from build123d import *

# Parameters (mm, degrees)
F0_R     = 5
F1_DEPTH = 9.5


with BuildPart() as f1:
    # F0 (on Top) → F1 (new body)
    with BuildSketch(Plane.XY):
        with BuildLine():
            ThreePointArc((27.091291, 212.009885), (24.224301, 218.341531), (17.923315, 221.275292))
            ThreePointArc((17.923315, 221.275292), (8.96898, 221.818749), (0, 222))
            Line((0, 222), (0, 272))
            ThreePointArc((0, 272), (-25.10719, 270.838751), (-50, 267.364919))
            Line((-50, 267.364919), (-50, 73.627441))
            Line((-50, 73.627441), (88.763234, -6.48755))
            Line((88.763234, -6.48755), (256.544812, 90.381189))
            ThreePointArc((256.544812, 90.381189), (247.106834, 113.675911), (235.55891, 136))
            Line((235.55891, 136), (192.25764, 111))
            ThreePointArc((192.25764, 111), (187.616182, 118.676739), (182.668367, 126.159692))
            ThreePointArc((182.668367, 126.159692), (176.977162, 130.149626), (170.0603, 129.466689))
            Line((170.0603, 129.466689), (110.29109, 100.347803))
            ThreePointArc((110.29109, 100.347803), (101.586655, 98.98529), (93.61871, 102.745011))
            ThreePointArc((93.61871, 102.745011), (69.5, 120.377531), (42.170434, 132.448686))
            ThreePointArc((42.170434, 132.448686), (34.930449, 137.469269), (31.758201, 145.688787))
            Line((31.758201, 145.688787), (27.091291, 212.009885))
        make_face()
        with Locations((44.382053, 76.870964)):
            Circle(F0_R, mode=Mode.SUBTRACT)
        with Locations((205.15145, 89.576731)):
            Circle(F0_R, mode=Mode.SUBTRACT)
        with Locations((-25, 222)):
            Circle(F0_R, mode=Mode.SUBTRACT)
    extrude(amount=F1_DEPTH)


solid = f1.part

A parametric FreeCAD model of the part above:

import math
import FreeCAD as App
import Part
import Sketcher
from FreeCAD import Vector
Q = App.Units.Quantity

doc = App.newDocument("Part")
params = doc.addObject("Spreadsheet::Sheet", "Params")
for row, (alias, value) in enumerate([
    ("sketch1_diameter", "10 mm"),
    ("sketch1_radius", "10.000001 mm"),
    ("sketch1_height", "50 mm"),
    ("sketch1_length", "50 mm"),
    ("pad1_length", "9.5 mm"),
], start=1):
    params.set(f"A{row}", alias)
    params.set(f"B{row}", "=" + value)
    params.setAlias(f"B{row}", alias)

body = doc.addObject("PartDesign::Body", "Body")

sketch1 = body.newObject("Sketcher::SketchObject", "Sketch")
sketch1.AttachmentSupport = (doc.getObject("XY_Plane"), [""])
sketch1.MapMode = "FlatFace"
sketch1.addGeometry(Part.ArcOfCircle(Part.Circle(Vector(17.115957, 211.307935, 0), Vector(0, 0, 1), 10.000001), math.radians(4.025185), math.radians(85.369138)), False)
sketch1.addGeometry(Part.ArcOfCircle(Part.Circle(Vector(-0.000001, -0.000069, 0), Vector(0, 0, 1), 222.000069), math.radians(85.369149), math.radians(90)), False)
sketch1.addGeometry(Part.LineSegment(Vector(0, 222, 0), Vector(0, 272, 0)), False)
sketch1.addGeometry(Part.ArcOfCircle(Part.Circle(Vector(-0.000002, 0.000033, 0), Vector(0, 0, 1), 271.999967), math.radians(90), math.radians(100.59255)), False)
sketch1.addGeometry(Part.LineSegment(Vector(-50, 267.364919, 0), Vector(-50, 73.627441, 0)), False)
sketch1.addGeometry(Part.LineSegment(Vector(-50, 73.627441, 0), Vector(88.763234, -6.48755, 0)), False)
sketch1.addGeometry(Part.LineSegment(Vector(88.763234, -6.48755, 0), Vector(256.544812, 90.381189, 0)), False)
sketch1.addGeometry(Part.ArcOfCircle(Part.Circle(Vector(0.000064, 0.000032, 0), Vector(0, 0, 1), 271.999929), math.radians(19.407449), math.radians(30.000001)), False)
sketch1.addGeometry(Part.LineSegment(Vector(235.55891, 136, 0), Vector(192.25764, 111, 0)), False)
sketch1.addGeometry(Part.ArcOfCircle(Part.Circle(Vector(-0.000083, -0.000051, 0), Vector(0, 0, 1), 222.000098), math.radians(30.000001), math.radians(34.630851)), False)
sketch1.addGeometry(Part.ArcOfCircle(Part.Circle(Vector(174.440061, 120.476821, 0), Vector(0, 0, 1), 10.000002), math.radians(34.630859), math.radians(115.974817)), False)
sketch1.addGeometry(Part.LineSegment(Vector(170.0603, 129.466689, 0), Vector(110.29109, 100.347803, 0)), False)
sketch1.addGeometry(Part.ArcOfCircle(Part.Circle(Vector(103.721448, 113.832598, 0), Vector(0, 0, 1), 14.999997), math.radians(-132.339015), math.radians(-64.025171)), False)
sketch1.addGeometry(Part.ArcOfCircle(Part.Circle(Vector(-0.000004, -0.00001, 0), Vector(0, 0, 1), 139.00001), math.radians(47.660995), math.radians(72.339007)), False)
sketch1.addGeometry(Part.ArcOfCircle(Part.Circle(Vector(46.721204, 146.741712, 0), Vector(0, 0, 1), 15.000004), math.radians(-175.974812), math.radians(-107.661004)), False)
sketch1.addGeometry(Part.LineSegment(Vector(31.758201, 145.688787, 0), Vector(27.091291, 212.009885, 0)), False)
sketch1.addGeometry(Part.Circle(Vector(44.382053, 76.870964, 0), Vector(0, 0, 1), 5), False)
sketch1.addGeometry(Part.Circle(Vector(205.15145, 89.576731, 0), Vector(0, 0, 1), 5), False)
sketch1.addGeometry(Part.Circle(Vector(-25, 222, 0), Vector(0, 0, 1), 5), False)
sketch1.addConstraint(Sketcher.Constraint("Tangent", 0, 2, 1, 1))
sketch1.addConstraint(Sketcher.Constraint("Coincident", 1, 2, 2, 1))
sketch1.addConstraint(Sketcher.Constraint("Coincident", 2, 2, 3, 1))
sketch1.addConstraint(Sketcher.Constraint("Coincident", 3, 2, 4, 1))
sketch1.addConstraint(Sketcher.Constraint("Coincident", 4, 2, 5, 1))
sketch1.addConstraint(Sketcher.Constraint("Coincident", 5, 2, 6, 1))
sketch1.addConstraint(Sketcher.Constraint("Coincident", 6, 2, 7, 1))
sketch1.addConstraint(Sketcher.Constraint("Coincident", 7, 2, 8, 1))
sketch1.addConstraint(Sketcher.Constraint("Coincident", 8, 2, 9, 1))
sketch1.addConstraint(Sketcher.Constraint("Tangent", 9, 2, 10, 1))
sketch1.addConstraint(Sketcher.Constraint("Tangent", 10, 2, 11, 1))
sketch1.addConstraint(Sketcher.Constraint("Tangent", 11, 2, 12, 2))
sketch1.addConstraint(Sketcher.Constraint("Tangent", 12, 1, 13, 1))
sketch1.addConstraint(Sketcher.Constraint("Tangent", 13, 2, 14, 2))
sketch1.addConstraint(Sketcher.Constraint("Tangent", 14, 1, 15, 1))
sketch1.addConstraint(Sketcher.Constraint("Tangent", 15, 2, 0, 1))
sketch1.addConstraint(Sketcher.Constraint("Vertical", 2))
sketch1.addConstraint(Sketcher.Constraint("Vertical", 4))
sketch1.addConstraint(Sketcher.Constraint("Equal", 0, 10))
sketch1.addConstraint(Sketcher.Constraint("Equal", 16, 17))
sketch1.addConstraint(Sketcher.Constraint("Equal", 17, 18))
sketch1.addConstraint(Sketcher.Constraint("PointOnObject", 1, 3, -2))
sketch1.addConstraint(Sketcher.Constraint("PointOnObject", 1, 2, -2))
sketch1.addConstraint(Sketcher.Constraint("Parallel", 6, 8))
sketch1.addConstraint(Sketcher.Constraint("Horizontal", 3, 3, 7, 3))
sketch1.addConstraint(Sketcher.Constraint("Horizontal", 18, 3, 1, 2))
sketch1.addConstraint(Sketcher.Constraint("Vertical", 1, 3, 3, 3))
sketch1.addConstraint(Sketcher.Constraint("Vertical", 3, 3, 13, 3))
sketch1.addConstraint(Sketcher.Constraint("Equal", 11, 15))
sketch1.addConstraint(Sketcher.Constraint("Diameter", 16, 10.0))
sketch1.addConstraint(Sketcher.Constraint("Radius", 0, 10.000001))
sketch1.addConstraint(Sketcher.Constraint("DistanceY", 2, 1, 2, 2, 50.0))
sketch1.addConstraint(Sketcher.Constraint("Angle", 5, Q("-30 deg")))
sketch1.addConstraint(Sketcher.Constraint("Angle", 6, Q("30 deg")))
sketch1.addConstraint(Sketcher.Constraint("Distance", 8, 50.0))
sketch1.addConstraint(Sketcher.Constraint("DistanceX", 18, 3, -1, 1, 25.0))
sketch1.addConstraint(Sketcher.Constraint("DistanceY", -1, 1, 18, 3, 222.0))
sketch1.addConstraint(Sketcher.Constraint("DistanceX", 3, 2, -1, 1, 50.0))
sketch1.addConstraint(Sketcher.Constraint("DistanceY", -1, 1, 7, 2, 136.0))
sketch1.addConstraint(Sketcher.Constraint("Radius", 1, 222.000069))
sketch1.addConstraint(Sketcher.Constraint("Radius", 7, 271.999929))
sketch1.addConstraint(Sketcher.Constraint("Radius", 13, 139.00001))
sketch1.addConstraint(Sketcher.Constraint("Radius", 3, 271.999967))
sketch1.addConstraint(Sketcher.Constraint("Radius", 9, 222.000098))
sketch1.addConstraint(Sketcher.Constraint("Radius", 12, 14.999997))
sketch1.addConstraint(Sketcher.Constraint("Radius", 14, 15.000004))
sketch1.addConstraint(Sketcher.Constraint("DistanceY", -1, 1, 12, 3, 113.832598))
sketch1.addConstraint(Sketcher.Constraint("DistanceX", -1, 1, 10, 2, 170.0603))
sketch1.addConstraint(Sketcher.Constraint("DistanceX", -1, 1, 14, 1, 31.758201))
sketch1.addConstraint(Sketcher.Constraint("DistanceY", 7, 3, 17, 3, 89.576699))
sketch1.addConstraint(Sketcher.Constraint("DistanceY", 5, 2, 9, 3, 6.487499))
sketch1.addConstraint(Sketcher.Constraint("DistanceY", 12, 1, 14, 3, 43.996701))
sketch1.addConstraint(Sketcher.Constraint("Distance", 5, 160.229981))
sketch1.addConstraint(Sketcher.Constraint("Distance", 6, 193.737478))
sketch1.addConstraint(Sketcher.Constraint("DistanceY", 4, 2, 4, 1, 193.737478))
sketch1.addConstraint(Sketcher.Constraint("DistanceX", -1, 1, 17, 3, 205.15145))
sketch1.addConstraint(Sketcher.Constraint("DistanceX", 16, 3, 14, 3, 2.339151))
sketch1.addConstraint(Sketcher.Constraint("DistanceY", 16, 3, 14, 3, 69.870748))
sketch1.setExpression("Constraints[29]", "Params.sketch1_diameter")
sketch1.setExpression("Constraints[30]", "Params.sketch1_radius")
sketch1.setExpression("Constraints[31]", "Params.sketch1_height")
sketch1.setExpression("Constraints[34]", "Params.sketch1_length")
pad1 = body.newObject("PartDesign::Pad", "Pad")
pad1.Profile = sketch1
pad1.setExpression("Length", "Params.pad1_length")

doc.recompute()
